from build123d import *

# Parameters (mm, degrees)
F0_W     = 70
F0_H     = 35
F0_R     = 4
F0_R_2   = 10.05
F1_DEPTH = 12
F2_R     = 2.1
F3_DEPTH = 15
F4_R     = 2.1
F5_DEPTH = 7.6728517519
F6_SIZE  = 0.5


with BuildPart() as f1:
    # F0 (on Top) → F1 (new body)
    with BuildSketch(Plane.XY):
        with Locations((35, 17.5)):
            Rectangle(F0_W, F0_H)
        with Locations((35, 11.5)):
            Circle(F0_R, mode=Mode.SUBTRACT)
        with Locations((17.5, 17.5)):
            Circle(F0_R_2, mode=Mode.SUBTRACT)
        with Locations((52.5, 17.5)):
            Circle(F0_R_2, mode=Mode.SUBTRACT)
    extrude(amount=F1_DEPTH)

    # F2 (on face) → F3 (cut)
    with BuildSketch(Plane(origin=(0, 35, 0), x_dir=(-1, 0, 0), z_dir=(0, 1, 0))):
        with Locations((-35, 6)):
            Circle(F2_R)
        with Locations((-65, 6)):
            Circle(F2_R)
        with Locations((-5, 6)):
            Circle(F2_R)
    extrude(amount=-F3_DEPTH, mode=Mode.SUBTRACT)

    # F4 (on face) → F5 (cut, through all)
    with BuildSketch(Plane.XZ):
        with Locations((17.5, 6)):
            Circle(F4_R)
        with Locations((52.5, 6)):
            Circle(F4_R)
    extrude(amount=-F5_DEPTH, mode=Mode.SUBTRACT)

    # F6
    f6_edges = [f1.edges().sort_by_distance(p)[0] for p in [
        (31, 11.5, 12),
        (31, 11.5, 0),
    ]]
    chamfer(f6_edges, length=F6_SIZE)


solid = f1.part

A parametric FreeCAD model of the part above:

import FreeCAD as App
import Part
import Sketcher

V = App.Vector
Q = App.Units.Quantity


def edges_at(feature, points):
    """Names of the edges that pass closest to the given points."""
    edges = feature.Shape.Edges
    near = lambda p: min(range(len(edges)), key=lambda i: edges[i].distToShape(Part.Vertex(*p))[0])
    return sorted({f"Edge{near(p) + 1}" for p in points})

doc = App.newDocument("Part")
body = doc.addObject("PartDesign::Body", "Body")

# Sketch on XY plane
sketch1 = body.newObject("Sketcher::SketchObject", "Sketch")
sketch1.AttachmentSupport = (doc.getObject("XY_Plane"), [""])
sketch1.MapMode = "FlatFace"
sketch1.addGeometry([
    Part.LineSegment(V(0, 35, 0), V(0, 0, 0)),  # 0
    Part.LineSegment(V(0, 0, 0), V(70, 0, 0)),  # 1
    Part.LineSegment(V(70, 0, 0), V(70, 35, 0)),  # 2
    Part.LineSegment(V(70, 35, 0), V(0, 35, 0)),  # 3
    Part.Circle(V(35, 11.5, 0), V(0, 0, 1), 4),  # 4
    Part.Circle(V(17.5, 17.5, 0), V(0, 0, 1), 10.1),  # 5
    Part.Circle(V(52.5, 17.5, 0), V(0, 0, 1), 10.1),  # 6
], False)
sketch1.addConstraint([
    Sketcher.Constraint("Coincident", 0, 2, 1, 1),
    Sketcher.Constraint("Coincident", 1, 2, 2, 1),
    Sketcher.Constraint("Coincident", 2, 2, 3, 1),
    Sketcher.Constraint("Coincident", 3, 2, 0, 1),
    Sketcher.Constraint("Vertical", 0),
    Sketcher.Constraint("Horizontal", 1),
    Sketcher.Constraint("Vertical", 2),
    Sketcher.Constraint("Horizontal", 3),
    Sketcher.Constraint("Coincident", 0, 2, -1, 1),
    Sketcher.Constraint("Equal", 5, 6),
    Sketcher.Constraint("Horizontal", 5, 3, 6, 3),
    Sketcher.Constraint("Diameter", 4, Q("8 mm")),
    Sketcher.Constraint("Diameter", 5, Q("20.1 mm")),
    Sketcher.Constraint("DistanceX", 1, 1, 1, 2, Q("70 mm")),
    Sketcher.Constraint("DistanceY", 0, 2, 0, 1, Q("35 mm")),
    Sketcher.Constraint("DistanceX", -1, 1, 4, 3, Q("35 mm")),
    Sketcher.Constraint("DistanceY", 4, 3, 5, 3, Q("6 mm")),
    Sketcher.Constraint("DistanceX", 5, 3, 6, 3, Q("35 mm")),
    Sketcher.Constraint("DistanceY", -1, 1, 4, 3, Q("11.5 mm")),
    Sketcher.Constraint("DistanceX", -1, 1, 5, 3, Q("17.5 mm")),
])
pad1 = body.newObject("PartDesign::Pad", "Pad")
pad1.Profile = sketch1
pad1.Length = 12

# Sketch on XZ plane
sketch2 = body.newObject("Sketcher::SketchObject", "Sketch001")
sketch2.AttachmentSupport = (doc.getObject("XZ_Plane"), [""])
sketch2.MapMode = "FlatFace"
sketch2.AttachmentOffset = App.Placement(V(0, 0, -35), App.Rotation())
sketch2.addGeometry([
    Part.Circle(V(35, 6, 0), V(0, 0, 1), 2.1),
    Part.Circle(V(65, 6, 0), V(0, 0, 1), 2.1),
    Part.Circle(V(5, 6, 0), V(0, 0, 1), 2.1),
], False)
sketch2.addConstraint([
    Sketcher.Constraint("Equal", 0, 1),
    Sketcher.Constraint("Equal", 1, 2),
    Sketcher.Constraint("Horizontal", 0, 3, 1, 3),
    Sketcher.Constraint("Horizontal", 1, 3, 2, 3),
    Sketcher.Constraint("Diameter", 0, Q("4.2 mm")),
    Sketcher.Constraint("DistanceX", -1, 1, 0, 3, Q("35 mm")),
    Sketcher.Constraint("DistanceY", -1, 1, 0, 3, Q("6 mm")),
    Sketcher.Constraint("DistanceX", -1, 1, 1, 3, Q("65 mm")),
    Sketcher.Constraint("DistanceX", -1, 1, 2, 3, Q("5 mm")),
])
pocket1 = body.newObject("PartDesign::Pocket", "Pocket")
pocket1.Profile = sketch2
pocket1.Length = 15
pocket1.Reversed = True

# Sketch on XZ plane
sketch3 = body.newObject("Sketcher::SketchObject", "Sketch002")
sketch3.AttachmentSupport = (doc.getObject("XZ_Plane"), [""])
sketch3.MapMode = "FlatFace"
sketch3.addGeometry([
    Part.Circle(V(17.5, 6, 0), V(0, 0, 1), 2.1),
    Part.Circle(V(52.5, 6, 0), V(0, 0, 1), 2.1),
], False)
sketch3.addConstraint([
    Sketcher.Constraint("Equal", 0, 1),
    Sketcher.Constraint("Horizontal", 0, 3, 1, 3),
    Sketcher.Constraint("Diameter", 0, Q("4.2 mm")),
    Sketcher.Constraint("DistanceY", -1, 1, 0, 3, Q("6 mm")),
    Sketcher.Constraint("DistanceX", 0, 3, 1, 3, Q("35 mm")),
    Sketcher.Constraint("DistanceX", -1, 1, 0, 3, Q("17.5 mm")),
])
pocket2 = body.newObject("PartDesign::Pocket", "Pocket001")
pocket2.Profile = sketch3
pocket2.Length = 7.672852
doc.recompute()

chamfer = body.newObject("PartDesign::Chamfer", "Chamfer")
chamfer.Base = (pocket2, edges_at(pocket2, [(31, 11.5, 12), (31, 11.5, 0)]))
chamfer.Size = 0.5

doc.recompute()
